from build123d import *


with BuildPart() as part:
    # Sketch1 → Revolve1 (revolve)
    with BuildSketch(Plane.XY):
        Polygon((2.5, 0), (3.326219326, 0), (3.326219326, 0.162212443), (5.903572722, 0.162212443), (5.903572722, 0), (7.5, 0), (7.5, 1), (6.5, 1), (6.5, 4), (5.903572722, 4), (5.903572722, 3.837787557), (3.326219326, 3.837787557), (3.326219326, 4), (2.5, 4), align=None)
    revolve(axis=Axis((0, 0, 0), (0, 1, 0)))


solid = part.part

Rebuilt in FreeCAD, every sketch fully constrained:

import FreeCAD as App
import Part
import Sketcher
from FreeCAD import Vector
Q = App.Units.Quantity

doc = App.newDocument("Part")
params = doc.addObject("Spreadsheet::Sheet", "Params")
for row, (alias, value) in enumerate([
    ("sketch1_width", "1 mm"),
    ("sketch1_height", "3 mm"),
    ("revolution_angle", "360 deg"),
], start=1):
    params.set(f"A{row}", alias)
    params.set(f"B{row}", "=" + value)
    params.setAlias(f"B{row}", alias)

body = doc.addObject("PartDesign::Body", "Body")

sketch1 = body.newObject("Sketcher::SketchObject", "Sketch")
sketch1.AttachmentSupport = (doc.getObject("XY_Plane"), [""])
sketch1.MapMode = "FlatFace"
sketch1.addGeometry([
    Part.LineSegment(Vector(2.5, 0, 0), Vector(3.33, 0, 0)),
    Part.LineSegment(Vector(3.33, 0, 0), Vector(3.33, 0.16, 0)),
    Part.LineSegment(Vector(3.33, 0.16, 0), Vector(5.9, 0.16, 0)),
    Part.LineSegment(Vector(5.9, 0.16, 0), Vector(5.9, 0, 0)),
    Part.LineSegment(Vector(5.9, 0, 0), Vector(7.5, 0, 0)),
    Part.LineSegment(Vector(7.5, 0, 0), Vector(7.5, 1, 0)),
    Part.LineSegment(Vector(7.5, 1, 0), Vector(6.5, 1, 0)),
    Part.LineSegment(Vector(6.5, 1, 0), Vector(6.5, 4, 0)),
    Part.LineSegment(Vector(6.5, 4, 0), Vector(5.9, 4, 0)),
    Part.LineSegment(Vector(5.9, 4, 0), Vector(5.9, 3.84, 0)),
    Part.LineSegment(Vector(5.9, 3.84, 0), Vector(3.33, 3.84, 0)),
    Part.LineSegment(Vector(3.33, 3.84, 0), Vector(3.33, 4, 0)),
    Part.LineSegment(Vector(3.33, 4, 0), Vector(2.5, 4, 0)),
    Part.LineSegment(Vector(2.5, 4, 0), Vector(2.5, 0, 0)),
], False)
sketch1.addConstraint([
    Sketcher.Constraint("Coincident", 0, 2, 1, 1),
    Sketcher.Constraint("Coincident", 1, 2, 2, 1),
    Sketcher.Constraint("Coincident", 2, 2, 3, 1),
    Sketcher.Constraint("Coincident", 3, 2, 4, 1),
    Sketcher.Constraint("Coincident", 4, 2, 5, 1),
    Sketcher.Constraint("Coincident", 5, 2, 6, 1),
    Sketcher.Constraint("Coincident", 6, 2, 7, 1),
    Sketcher.Constraint("Coincident", 7, 2, 8, 1),
    Sketcher.Constraint("Coincident", 8, 2, 9, 1),
    Sketcher.Constraint("Coincident", 9, 2, 10, 1),
    Sketcher.Constraint("Coincident", 10, 2, 11, 1),
    Sketcher.Constraint("Coincident", 11, 2, 12, 1),
    Sketcher.Constraint("Coincident", 12, 2, 13, 1),
    Sketcher.Constraint("Coincident", 13, 2, 0, 1),
    Sketcher.Constraint("Horizontal", 0),
    Sketcher.Constraint("Vertical", 1),
    Sketcher.Constraint("Horizontal", 2),
    Sketcher.Constraint("Vertical", 3),
    Sketcher.Constraint("Horizontal", 4),
    Sketcher.Constraint("Vertical", 5),
    Sketcher.Constraint("Horizontal", 6),
    Sketcher.Constraint("Vertical", 7),
    Sketcher.Constraint("Horizontal", 8),
    Sketcher.Constraint("Vertical", 9),
    Sketcher.Constraint("Horizontal", 10),
    Sketcher.Constraint("Vertical", 11),
    Sketcher.Constraint("Horizontal", 12),
    Sketcher.Constraint("Vertical", 13),
    Sketcher.Constraint("PointOnObject", 0, 2, -1),
    Sketcher.Constraint("PointOnObject", 3, 2, -1),
    Sketcher.Constraint("Horizontal", 8, 2, 11, 2),
    Sketcher.Constraint("Vertical", 3, 2, 8, 2),
    Sketcher.Constraint("Vertical", 1, 2, 10, 2),
    Sketcher.Constraint("Equal", 6, 5),
    Sketcher.Constraint("Equal", 3, 9),
    Sketcher.Constraint("DistanceX", 6, 2, 6, 1, Q("1 mm")),
    Sketcher.Constraint("DistanceY", 7, 1, 7, 2, Q("3 mm")),
    Sketcher.Constraint("DistanceX", -1, 1, 4, 2, Q("7.5 mm")),
    Sketcher.Constraint("DistanceX", -1, 1, 12, 2, Q("2.5 mm")),
    Sketcher.Constraint("DistanceX", 0, 1, 0, 2, Q("0.826219 mm")),
    Sketcher.Constraint("DistanceX", 2, 1, 2, 2, Q("2.577353 mm")),
    Sketcher.Constraint("DistanceY", 1, 1, 1, 2, Q("0.162212 mm")),
])
sketch1.setExpression("Constraints[35]", "Params.sketch1_width")
sketch1.setExpression("Constraints[36]", "Params.sketch1_height")
revolution = body.newObject("PartDesign::Revolution", "Revolution")
revolution.Profile = sketch1
revolution.ReferenceAxis = (sketch1, ["V_Axis"])
revolution.setExpression("Angle", "Params.revolution_angle")

doc.recompute()
